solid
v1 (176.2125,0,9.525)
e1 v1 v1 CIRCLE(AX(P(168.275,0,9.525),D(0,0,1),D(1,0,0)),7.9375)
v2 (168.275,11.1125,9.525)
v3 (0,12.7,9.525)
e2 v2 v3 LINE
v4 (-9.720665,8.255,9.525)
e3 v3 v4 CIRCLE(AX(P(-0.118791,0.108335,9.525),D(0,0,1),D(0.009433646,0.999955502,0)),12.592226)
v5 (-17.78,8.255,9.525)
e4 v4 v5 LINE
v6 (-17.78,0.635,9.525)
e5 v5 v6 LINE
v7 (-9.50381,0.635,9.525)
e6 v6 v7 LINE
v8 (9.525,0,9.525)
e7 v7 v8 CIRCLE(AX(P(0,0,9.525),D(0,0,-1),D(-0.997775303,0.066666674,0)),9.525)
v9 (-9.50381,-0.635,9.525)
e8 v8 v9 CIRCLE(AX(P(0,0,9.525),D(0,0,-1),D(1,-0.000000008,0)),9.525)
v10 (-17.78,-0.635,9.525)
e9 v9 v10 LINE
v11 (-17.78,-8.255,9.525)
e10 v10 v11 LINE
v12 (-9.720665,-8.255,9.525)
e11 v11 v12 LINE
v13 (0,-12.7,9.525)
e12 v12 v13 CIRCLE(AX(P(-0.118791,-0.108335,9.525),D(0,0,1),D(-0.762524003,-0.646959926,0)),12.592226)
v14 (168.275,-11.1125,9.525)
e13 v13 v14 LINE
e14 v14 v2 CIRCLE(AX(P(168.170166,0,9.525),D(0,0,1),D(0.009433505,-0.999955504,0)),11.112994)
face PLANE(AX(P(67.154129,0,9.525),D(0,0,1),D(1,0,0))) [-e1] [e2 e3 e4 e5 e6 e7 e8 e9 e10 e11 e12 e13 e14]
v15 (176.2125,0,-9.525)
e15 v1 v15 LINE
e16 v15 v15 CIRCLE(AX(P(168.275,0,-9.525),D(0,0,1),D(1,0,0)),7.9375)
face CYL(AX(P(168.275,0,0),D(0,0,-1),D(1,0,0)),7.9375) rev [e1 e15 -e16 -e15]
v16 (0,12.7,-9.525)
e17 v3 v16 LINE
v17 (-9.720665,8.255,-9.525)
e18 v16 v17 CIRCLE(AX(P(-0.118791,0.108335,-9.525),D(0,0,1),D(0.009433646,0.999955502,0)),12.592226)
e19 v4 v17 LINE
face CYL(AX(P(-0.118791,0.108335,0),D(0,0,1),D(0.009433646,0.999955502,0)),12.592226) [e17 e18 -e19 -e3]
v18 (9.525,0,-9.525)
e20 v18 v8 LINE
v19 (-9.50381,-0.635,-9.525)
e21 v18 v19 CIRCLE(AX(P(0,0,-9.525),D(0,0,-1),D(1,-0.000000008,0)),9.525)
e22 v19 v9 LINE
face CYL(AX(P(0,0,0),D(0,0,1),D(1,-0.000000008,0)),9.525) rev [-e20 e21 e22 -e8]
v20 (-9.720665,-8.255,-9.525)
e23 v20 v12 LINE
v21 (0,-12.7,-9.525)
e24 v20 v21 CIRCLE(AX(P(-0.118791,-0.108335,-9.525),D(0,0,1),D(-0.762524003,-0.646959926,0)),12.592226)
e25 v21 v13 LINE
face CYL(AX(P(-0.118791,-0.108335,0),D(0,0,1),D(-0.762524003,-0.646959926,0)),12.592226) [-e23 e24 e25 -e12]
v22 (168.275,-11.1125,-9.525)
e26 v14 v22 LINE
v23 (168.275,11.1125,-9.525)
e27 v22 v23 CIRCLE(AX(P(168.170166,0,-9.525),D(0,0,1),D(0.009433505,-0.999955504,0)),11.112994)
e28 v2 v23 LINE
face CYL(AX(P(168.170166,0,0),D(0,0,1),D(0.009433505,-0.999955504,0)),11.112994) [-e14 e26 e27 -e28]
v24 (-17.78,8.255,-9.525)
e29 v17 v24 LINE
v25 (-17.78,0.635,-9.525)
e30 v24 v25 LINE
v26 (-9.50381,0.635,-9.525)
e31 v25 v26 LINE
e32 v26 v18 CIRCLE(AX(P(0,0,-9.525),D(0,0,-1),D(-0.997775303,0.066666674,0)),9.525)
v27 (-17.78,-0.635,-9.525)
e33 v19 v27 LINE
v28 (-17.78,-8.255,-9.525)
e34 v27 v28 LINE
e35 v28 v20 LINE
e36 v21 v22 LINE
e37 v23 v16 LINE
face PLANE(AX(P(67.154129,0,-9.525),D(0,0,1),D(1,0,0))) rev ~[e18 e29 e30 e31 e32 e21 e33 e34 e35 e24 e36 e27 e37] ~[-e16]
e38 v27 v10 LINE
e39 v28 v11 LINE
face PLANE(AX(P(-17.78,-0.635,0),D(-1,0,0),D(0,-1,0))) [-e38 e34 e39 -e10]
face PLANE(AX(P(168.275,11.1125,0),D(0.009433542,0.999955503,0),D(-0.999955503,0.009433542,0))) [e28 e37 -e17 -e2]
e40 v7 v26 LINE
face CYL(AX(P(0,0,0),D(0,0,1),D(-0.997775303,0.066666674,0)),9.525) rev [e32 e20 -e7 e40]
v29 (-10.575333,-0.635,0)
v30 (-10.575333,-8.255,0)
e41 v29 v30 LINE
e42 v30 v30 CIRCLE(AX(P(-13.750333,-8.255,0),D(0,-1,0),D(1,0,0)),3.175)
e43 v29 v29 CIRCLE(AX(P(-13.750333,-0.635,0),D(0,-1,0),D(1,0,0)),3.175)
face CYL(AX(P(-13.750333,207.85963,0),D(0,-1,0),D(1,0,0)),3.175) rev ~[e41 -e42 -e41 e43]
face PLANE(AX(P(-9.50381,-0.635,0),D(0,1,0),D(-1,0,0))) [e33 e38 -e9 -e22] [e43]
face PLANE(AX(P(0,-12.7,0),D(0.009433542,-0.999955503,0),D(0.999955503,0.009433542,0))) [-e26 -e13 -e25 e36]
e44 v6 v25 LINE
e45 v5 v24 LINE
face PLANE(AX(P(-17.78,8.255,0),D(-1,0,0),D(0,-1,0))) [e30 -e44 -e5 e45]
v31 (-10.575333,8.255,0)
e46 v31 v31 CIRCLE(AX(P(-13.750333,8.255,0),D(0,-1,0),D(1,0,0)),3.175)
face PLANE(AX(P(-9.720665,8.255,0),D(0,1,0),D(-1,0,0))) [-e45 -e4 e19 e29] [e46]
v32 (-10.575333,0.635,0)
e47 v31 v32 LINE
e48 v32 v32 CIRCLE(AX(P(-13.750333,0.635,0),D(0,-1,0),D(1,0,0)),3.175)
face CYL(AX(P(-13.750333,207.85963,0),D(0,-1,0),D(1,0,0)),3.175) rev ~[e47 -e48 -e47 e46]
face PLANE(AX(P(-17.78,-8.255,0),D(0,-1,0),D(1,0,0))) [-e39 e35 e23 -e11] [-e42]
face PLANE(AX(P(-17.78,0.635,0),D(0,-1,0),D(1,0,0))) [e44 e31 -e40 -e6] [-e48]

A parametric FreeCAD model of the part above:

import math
import FreeCAD as App
import Part
import Sketcher
from FreeCAD import Vector
Q = App.Units.Quantity

doc = App.newDocument("Part")
body = doc.addObject("PartDesign::Body", "Body")

sketch1 = body.newObject("Sketcher::SketchObject", "Sketch")
sketch1.AttachmentSupport = (doc.getObject("XY_Plane"), [""])
sketch1.MapMode = "FlatFace"
sketch1.addGeometry(Part.ArcOfCircle(Part.Circle(Vector(0, 0, 0), Vector(0, 0, 1), 10), math.radians(0), math.radians(176)), False)
sketch1.addGeometry(Part.ArcOfCircle(Part.Circle(Vector(0, 0, 0), Vector(0, 0, 1), 10), math.radians(-176), math.radians(0)), False)
sketch1.addGeometry(Part.LineSegment(Vector(-10, -1, 0), Vector(-18, -1, 0)), False)
sketch1.addGeometry(Part.LineSegment(Vector(-18, -1, 0), Vector(-18, -8, 0)), False)
sketch1.addGeometry(Part.LineSegment(Vector(-18, -8, 0), Vector(-10, -8, 0)), False)
sketch1.addGeometry(Part.ArcOfCircle(Part.Circle(Vector(0, 0, 0), Vector(0, 0, 1), 13), math.radians(-140), math.radians(-89)), False)
sketch1.addGeometry(Part.LineSegment(Vector(0, -13, 0), Vector(168, -11, 0)), False)
sketch1.addGeometry(Part.ArcOfCircle(Part.Circle(Vector(168, 0, 0), Vector(0, 0, 1), 11), math.radians(-89), math.radians(89)), False)
sketch1.addGeometry(Part.LineSegment(Vector(168, 11, 0), Vector(0, 13, 0)), False)
sketch1.addGeometry(Part.ArcOfCircle(Part.Circle(Vector(0, 0, 0), Vector(0, 0, 1), 13), math.radians(89), math.radians(140)), False)
sketch1.addGeometry(Part.LineSegment(Vector(-10, 8, 0), Vector(-18, 8, 0)), False)
sketch1.addGeometry(Part.LineSegment(Vector(-18, 8, 0), Vector(-18, 1, 0)), False)
sketch1.addGeometry(Part.LineSegment(Vector(-18, 1, 0), Vector(-10, 1, 0)), False)
sketch1.addGeometry(Part.Circle(Vector(168, 0, 0), Vector(0, 0, 1), 8), False)
sketch1.addConstraint(Sketcher.Constraint("Tangent", 0, 1, 1, 2))
sketch1.addConstraint(Sketcher.Constraint("Coincident", 1, 1, 2, 1))
sketch1.addConstraint(Sketcher.Constraint("Coincident", 2, 2, 3, 1))
sketch1.addConstraint(Sketcher.Constraint("Coincident", 3, 2, 4, 1))
sketch1.addConstraint(Sketcher.Constraint("Coincident", 4, 2, 5, 1))
sketch1.addConstraint(Sketcher.Constraint("Tangent", 5, 2, 6, 1))
sketch1.addConstraint(Sketcher.Constraint("Tangent", 6, 2, 7, 1))
sketch1.addConstraint(Sketcher.Constraint("Tangent", 7, 2, 8, 1))
sketch1.addConstraint(Sketcher.Constraint("Tangent", 8, 2, 9, 1))
sketch1.addConstraint(Sketcher.Constraint("Coincident", 9, 2, 10, 1))
sketch1.addConstraint(Sketcher.Constraint("Coincident", 10, 2, 11, 1))
sketch1.addConstraint(Sketcher.Constraint("Coincident", 11, 2, 12, 1))
sketch1.addConstraint(Sketcher.Constraint("Coincident", 12, 2, 0, 2))
sketch1.addConstraint(Sketcher.Constraint("Horizontal", 2))
sketch1.addConstraint(Sketcher.Constraint("Vertical", 3))
sketch1.addConstraint(Sketcher.Constraint("Horizontal", 4))
sketch1.addConstraint(Sketcher.Constraint("Horizontal", 10))
sketch1.addConstraint(Sketcher.Constraint("Vertical", 11))
sketch1.addConstraint(Sketcher.Constraint("Horizontal", 12))
sketch1.addConstraint(Sketcher.Constraint("Coincident", 0, 3, -1, 1))
sketch1.addConstraint(Sketcher.Constraint("Equal", 0, 1))
sketch1.addConstraint(Sketcher.Constraint("Equal", 5, 9))
sketch1.addConstraint(Sketcher.Constraint("Symmetric", 5, 2, 8, 2, -1, 1))
sketch1.addConstraint(Sketcher.Constraint("Symmetric", 6, 2, 7, 2, -1))
sketch1.addConstraint(Sketcher.Constraint("Symmetric", 3, 2, 10, 2, -1))
sketch1.addConstraint(Sketcher.Constraint("PointOnObject", 13, 3, -1))
sketch1.addConstraint(Sketcher.Constraint("PointOnObject", 0, 1, -1))
sketch1.addConstraint(Sketcher.Constraint("Vertical", 13, 3, 6, 2))
sketch1.addConstraint(Sketcher.Constraint("Vertical", 1, 1, 12, 2))
sketch1.addConstraint(Sketcher.Constraint("Diameter", 13, Q("0.625 in")))
sketch1.addConstraint(Sketcher.Constraint("DistanceY", 3, 2, 3, 1, Q("0.3 in")))
sketch1.addConstraint(Sketcher.Constraint("Radius", 0, Q("0.375 in")))
sketch1.addConstraint(Sketcher.Constraint("DistanceX", 2, 2, -1, 1, Q("0.7 in")))
sketch1.addConstraint(Sketcher.Constraint("DistanceY", 5, 2, -1, 1, Q("0.5 in")))
sketch1.addConstraint(Sketcher.Constraint("DistanceX", 0, 1, 6, 2, Q("6.25 in")))
sketch1.addConstraint(Sketcher.Constraint("DistanceY", 1, 1, 9, 2, Q("0.35 in")))
sketch1.addConstraint(Sketcher.Constraint("DistanceY", 6, 2, -1, 1, Q("0.4375 in")))
sketch1.addConstraint(Sketcher.Constraint("Radius", 5, 12.592226))
pad1 = body.newObject("PartDesign::Pad", "Pad")
pad1.Profile = sketch1
pad1.Length = Q("0.75 in")
pad1.Midplane = True

sketch2 = body.newObject("Sketcher::SketchObject", "Sketch001")
sketch2.AttachmentSupport = (doc.getObject("XZ_Plane"), [""])
sketch2.MapMode = "FlatFace"
sketch2.AttachmentOffset = App.Placement(Vector(0, 0, -0.325 * 25.4), App.Rotation())
sketch2.addGeometry(Part.Circle(Vector(-13.8, 0, 0), Vector(0, 0, 1), 3.2), False)
sketch2.addConstraint(Sketcher.Constraint("PointOnObject", 0, 3, -1))
sketch2.addConstraint(Sketcher.Constraint("Diameter", 0, Q("0.25 in")))
sketch2.addConstraint(Sketcher.Constraint("DistanceX", 0, 3, -1, 1, 13.750333))
doc.recompute()
hole = body.newObject("PartDesign::Hole", "Hole")
hole.Profile = sketch2
hole.ThreadType = "None"
hole.Diameter = Q("0.25 in")
hole.DepthType = "ThroughAll"
hole.Reversed = True

doc.recompute()
